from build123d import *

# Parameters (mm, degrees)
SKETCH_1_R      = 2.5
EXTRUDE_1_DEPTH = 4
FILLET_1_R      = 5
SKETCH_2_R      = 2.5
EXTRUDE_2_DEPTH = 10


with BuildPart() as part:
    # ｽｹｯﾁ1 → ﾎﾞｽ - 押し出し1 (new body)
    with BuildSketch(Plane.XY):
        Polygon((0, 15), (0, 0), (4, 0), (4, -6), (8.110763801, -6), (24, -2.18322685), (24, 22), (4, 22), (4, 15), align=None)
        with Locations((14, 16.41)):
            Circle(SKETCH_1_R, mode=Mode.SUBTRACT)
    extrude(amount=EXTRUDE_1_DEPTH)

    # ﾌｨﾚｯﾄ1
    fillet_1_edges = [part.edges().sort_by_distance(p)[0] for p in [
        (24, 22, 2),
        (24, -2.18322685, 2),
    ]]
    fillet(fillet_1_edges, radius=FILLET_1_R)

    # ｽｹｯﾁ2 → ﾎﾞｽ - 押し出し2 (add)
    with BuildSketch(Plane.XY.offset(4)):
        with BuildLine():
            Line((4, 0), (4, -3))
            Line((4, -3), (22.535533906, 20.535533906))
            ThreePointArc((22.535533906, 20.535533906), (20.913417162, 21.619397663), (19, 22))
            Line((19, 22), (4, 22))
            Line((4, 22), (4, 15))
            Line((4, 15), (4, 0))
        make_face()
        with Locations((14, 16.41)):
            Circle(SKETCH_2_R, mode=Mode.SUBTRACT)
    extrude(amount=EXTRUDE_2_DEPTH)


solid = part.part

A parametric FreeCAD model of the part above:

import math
import FreeCAD as App
import Part
import Sketcher

V = App.Vector
Q = App.Units.Quantity


def edges_at(feature, points):
    """Names of the edges that pass closest to the given points."""
    edges = feature.Shape.Edges
    near = lambda p: min(range(len(edges)), key=lambda i: edges[i].distToShape(Part.Vertex(*p))[0])
    return sorted({f"Edge{near(p) + 1}" for p in points})

doc = App.newDocument("Part")
body = doc.addObject("PartDesign::Body", "Body")

sketch1 = body.newObject("Sketcher::SketchObject", "Sketch")
sketch1.AttachmentSupport = (doc.getObject("XY_Plane"), [""])
sketch1.MapMode = "FlatFace"
sketch1.addGeometry(Part.LineSegment(V(0, 15, 0), V(0, 0, 0)), False)
sketch1.addGeometry(Part.LineSegment(V(0, 0, 0), V(4, 0, 0)), False)
sketch1.addGeometry(Part.LineSegment(V(4, 0, 0), V(4, -6, 0)), False)
sketch1.addGeometry(Part.LineSegment(V(4, -6, 0), V(8.1, -6, 0)), False)
sketch1.addGeometry(Part.LineSegment(V(8.1, -6, 0), V(24, -2.2, 0)), False)
sketch1.addGeometry(Part.LineSegment(V(24, -2.2, 0), V(24, 22, 0)), False)
sketch1.addGeometry(Part.LineSegment(V(24, 22, 0), V(4, 22, 0)), False)
sketch1.addGeometry(Part.LineSegment(V(4, 22, 0), V(4, 15, 0)), False)
sketch1.addGeometry(Part.LineSegment(V(4, 15, 0), V(0, 15, 0)), False)
sketch1.addGeometry(Part.Circle(V(14, 16.4, 0), V(0, 0, 1), 2.5), False)
sketch1.addConstraint(Sketcher.Constraint("Coincident", 0, 2, 1, 1))
sketch1.addConstraint(Sketcher.Constraint("Coincident", 1, 2, 2, 1))
sketch1.addConstraint(Sketcher.Constraint("Coincident", 2, 2, 3, 1))
sketch1.addConstraint(Sketcher.Constraint("Coincident", 3, 2, 4, 1))
sketch1.addConstraint(Sketcher.Constraint("Coincident", 4, 2, 5, 1))
sketch1.addConstraint(Sketcher.Constraint("Coincident", 5, 2, 6, 1))
sketch1.addConstraint(Sketcher.Constraint("Coincident", 6, 2, 7, 1))
sketch1.addConstraint(Sketcher.Constraint("Coincident", 7, 2, 8, 1))
sketch1.addConstraint(Sketcher.Constraint("Coincident", 8, 2, 0, 1))
sketch1.addConstraint(Sketcher.Constraint("Vertical", 0))
sketch1.addConstraint(Sketcher.Constraint("Horizontal", 1))
sketch1.addConstraint(Sketcher.Constraint("Vertical", 2))
sketch1.addConstraint(Sketcher.Constraint("Horizontal", 3))
sketch1.addConstraint(Sketcher.Constraint("Vertical", 5))
sketch1.addConstraint(Sketcher.Constraint("Horizontal", 6))
sketch1.addConstraint(Sketcher.Constraint("Vertical", 7))
sketch1.addConstraint(Sketcher.Constraint("Horizontal", 8))
sketch1.addConstraint(Sketcher.Constraint("Coincident", 0, 2, -1, 1))
sketch1.addConstraint(Sketcher.Constraint("Vertical", 2, 2, 6, 2))
sketch1.addConstraint(Sketcher.Constraint("Diameter", 9, Q("5 mm")))
sketch1.addConstraint(Sketcher.Constraint("DistanceX", 1, 1, 1, 2, Q("4 mm")))
sketch1.addConstraint(Sketcher.Constraint("DistanceX", 6, 2, 6, 1, Q("20 mm")))
sketch1.addConstraint(Sketcher.Constraint("DistanceY", 0, 2, 0, 1, Q("15 mm")))
sketch1.addConstraint(Sketcher.Constraint("DistanceY", 2, 2, 2, 1, Q("6 mm")))
sketch1.addConstraint(Sketcher.Constraint("DistanceY", 7, 2, 7, 1, Q("7 mm")))
sketch1.addConstraint(Sketcher.Constraint("DistanceX", -1, 1, 9, 3, Q("14 mm")))
sketch1.addConstraint(Sketcher.Constraint("DistanceY", -1, 1, 9, 3, Q("16.41 mm")))
sketch1.addConstraint(Sketcher.Constraint("DistanceX", 3, 1, 3, 2, Q("4.110764 mm")))
sketch1.addConstraint(Sketcher.Constraint("DistanceY", 5, 1, 5, 2, Q("24.183227 mm")))
pad1 = body.newObject("PartDesign::Pad", "Pad")
pad1.Profile = sketch1
pad1.Length = 4
doc.recompute()

fillet = body.newObject("PartDesign::Fillet", "Fillet")
fillet.Base = (pad1, edges_at(pad1, [(24, 22, 2), (24, -2.183, 2)]))
fillet.Radius = 5

sketch2 = body.newObject("Sketcher::SketchObject", "Sketch001")
sketch2.AttachmentSupport = (doc.getObject("XY_Plane"), [""])
sketch2.MapMode = "FlatFace"
sketch2.AttachmentOffset = App.Placement(V(0, 0, 4), App.Rotation())
sketch2.addGeometry(Part.LineSegment(V(4, -3, 0), V(22.5, 20.5, 0)), False)
sketch2.addGeometry(Part.ArcOfCircle(Part.Circle(V(19, 17, 0), V(0, 0, 1), 5), math.radians(45), math.radians(90)), False)
sketch2.addGeometry(Part.LineSegment(V(19, 22, 0), V(4, 22, 0)), False)
sketch2.addGeometry(Part.LineSegment(V(4, 22, 0), V(4, -3, 0)), False)
sketch2.addGeometry(Part.Circle(V(14, 16.4, 0), V(0, 0, 1), 2.5), False)
sketch2.addConstraint(Sketcher.Constraint("Coincident", 0, 2, 1, 1))
sketch2.addConstraint(Sketcher.Constraint("Tangent", 1, 2, 2, 1))
sketch2.addConstraint(Sketcher.Constraint("Coincident", 2, 2, 3, 1))
sketch2.addConstraint(Sketcher.Constraint("Coincident", 3, 2, 0, 1))
sketch2.addConstraint(Sketcher.Constraint("Horizontal", 2))
sketch2.addConstraint(Sketcher.Constraint("Vertical", 3))
sketch2.addConstraint(Sketcher.Constraint("Diameter", 4, Q("5 mm")))
sketch2.addConstraint(Sketcher.Constraint("Radius", 1, Q("5 mm")))
sketch2.addConstraint(Sketcher.Constraint("DistanceX", 2, 2, 2, 1, Q("15 mm")))
sketch2.addConstraint(Sketcher.Constraint("DistanceY", 3, 2, 3, 1, Q("25 mm")))
sketch2.addConstraint(Sketcher.Constraint("DistanceX", -1, 1, 1, 3, Q("19 mm")))
sketch2.addConstraint(Sketcher.Constraint("DistanceY", -1, 1, 1, 3, Q("17 mm")))
sketch2.addConstraint(Sketcher.Constraint("DistanceX", -1, 1, 4, 3, Q("14 mm")))
sketch2.addConstraint(Sketcher.Constraint("DistanceY", -1, 1, 4, 3, Q("16.41 mm")))
sketch2.addConstraint(Sketcher.Constraint("Distance", 0, Q("29.958094 mm")))
pad2 = body.newObject("PartDesign::Pad", "Pad001")
pad2.Profile = sketch2
pad2.Length = 10

doc.recompute()
